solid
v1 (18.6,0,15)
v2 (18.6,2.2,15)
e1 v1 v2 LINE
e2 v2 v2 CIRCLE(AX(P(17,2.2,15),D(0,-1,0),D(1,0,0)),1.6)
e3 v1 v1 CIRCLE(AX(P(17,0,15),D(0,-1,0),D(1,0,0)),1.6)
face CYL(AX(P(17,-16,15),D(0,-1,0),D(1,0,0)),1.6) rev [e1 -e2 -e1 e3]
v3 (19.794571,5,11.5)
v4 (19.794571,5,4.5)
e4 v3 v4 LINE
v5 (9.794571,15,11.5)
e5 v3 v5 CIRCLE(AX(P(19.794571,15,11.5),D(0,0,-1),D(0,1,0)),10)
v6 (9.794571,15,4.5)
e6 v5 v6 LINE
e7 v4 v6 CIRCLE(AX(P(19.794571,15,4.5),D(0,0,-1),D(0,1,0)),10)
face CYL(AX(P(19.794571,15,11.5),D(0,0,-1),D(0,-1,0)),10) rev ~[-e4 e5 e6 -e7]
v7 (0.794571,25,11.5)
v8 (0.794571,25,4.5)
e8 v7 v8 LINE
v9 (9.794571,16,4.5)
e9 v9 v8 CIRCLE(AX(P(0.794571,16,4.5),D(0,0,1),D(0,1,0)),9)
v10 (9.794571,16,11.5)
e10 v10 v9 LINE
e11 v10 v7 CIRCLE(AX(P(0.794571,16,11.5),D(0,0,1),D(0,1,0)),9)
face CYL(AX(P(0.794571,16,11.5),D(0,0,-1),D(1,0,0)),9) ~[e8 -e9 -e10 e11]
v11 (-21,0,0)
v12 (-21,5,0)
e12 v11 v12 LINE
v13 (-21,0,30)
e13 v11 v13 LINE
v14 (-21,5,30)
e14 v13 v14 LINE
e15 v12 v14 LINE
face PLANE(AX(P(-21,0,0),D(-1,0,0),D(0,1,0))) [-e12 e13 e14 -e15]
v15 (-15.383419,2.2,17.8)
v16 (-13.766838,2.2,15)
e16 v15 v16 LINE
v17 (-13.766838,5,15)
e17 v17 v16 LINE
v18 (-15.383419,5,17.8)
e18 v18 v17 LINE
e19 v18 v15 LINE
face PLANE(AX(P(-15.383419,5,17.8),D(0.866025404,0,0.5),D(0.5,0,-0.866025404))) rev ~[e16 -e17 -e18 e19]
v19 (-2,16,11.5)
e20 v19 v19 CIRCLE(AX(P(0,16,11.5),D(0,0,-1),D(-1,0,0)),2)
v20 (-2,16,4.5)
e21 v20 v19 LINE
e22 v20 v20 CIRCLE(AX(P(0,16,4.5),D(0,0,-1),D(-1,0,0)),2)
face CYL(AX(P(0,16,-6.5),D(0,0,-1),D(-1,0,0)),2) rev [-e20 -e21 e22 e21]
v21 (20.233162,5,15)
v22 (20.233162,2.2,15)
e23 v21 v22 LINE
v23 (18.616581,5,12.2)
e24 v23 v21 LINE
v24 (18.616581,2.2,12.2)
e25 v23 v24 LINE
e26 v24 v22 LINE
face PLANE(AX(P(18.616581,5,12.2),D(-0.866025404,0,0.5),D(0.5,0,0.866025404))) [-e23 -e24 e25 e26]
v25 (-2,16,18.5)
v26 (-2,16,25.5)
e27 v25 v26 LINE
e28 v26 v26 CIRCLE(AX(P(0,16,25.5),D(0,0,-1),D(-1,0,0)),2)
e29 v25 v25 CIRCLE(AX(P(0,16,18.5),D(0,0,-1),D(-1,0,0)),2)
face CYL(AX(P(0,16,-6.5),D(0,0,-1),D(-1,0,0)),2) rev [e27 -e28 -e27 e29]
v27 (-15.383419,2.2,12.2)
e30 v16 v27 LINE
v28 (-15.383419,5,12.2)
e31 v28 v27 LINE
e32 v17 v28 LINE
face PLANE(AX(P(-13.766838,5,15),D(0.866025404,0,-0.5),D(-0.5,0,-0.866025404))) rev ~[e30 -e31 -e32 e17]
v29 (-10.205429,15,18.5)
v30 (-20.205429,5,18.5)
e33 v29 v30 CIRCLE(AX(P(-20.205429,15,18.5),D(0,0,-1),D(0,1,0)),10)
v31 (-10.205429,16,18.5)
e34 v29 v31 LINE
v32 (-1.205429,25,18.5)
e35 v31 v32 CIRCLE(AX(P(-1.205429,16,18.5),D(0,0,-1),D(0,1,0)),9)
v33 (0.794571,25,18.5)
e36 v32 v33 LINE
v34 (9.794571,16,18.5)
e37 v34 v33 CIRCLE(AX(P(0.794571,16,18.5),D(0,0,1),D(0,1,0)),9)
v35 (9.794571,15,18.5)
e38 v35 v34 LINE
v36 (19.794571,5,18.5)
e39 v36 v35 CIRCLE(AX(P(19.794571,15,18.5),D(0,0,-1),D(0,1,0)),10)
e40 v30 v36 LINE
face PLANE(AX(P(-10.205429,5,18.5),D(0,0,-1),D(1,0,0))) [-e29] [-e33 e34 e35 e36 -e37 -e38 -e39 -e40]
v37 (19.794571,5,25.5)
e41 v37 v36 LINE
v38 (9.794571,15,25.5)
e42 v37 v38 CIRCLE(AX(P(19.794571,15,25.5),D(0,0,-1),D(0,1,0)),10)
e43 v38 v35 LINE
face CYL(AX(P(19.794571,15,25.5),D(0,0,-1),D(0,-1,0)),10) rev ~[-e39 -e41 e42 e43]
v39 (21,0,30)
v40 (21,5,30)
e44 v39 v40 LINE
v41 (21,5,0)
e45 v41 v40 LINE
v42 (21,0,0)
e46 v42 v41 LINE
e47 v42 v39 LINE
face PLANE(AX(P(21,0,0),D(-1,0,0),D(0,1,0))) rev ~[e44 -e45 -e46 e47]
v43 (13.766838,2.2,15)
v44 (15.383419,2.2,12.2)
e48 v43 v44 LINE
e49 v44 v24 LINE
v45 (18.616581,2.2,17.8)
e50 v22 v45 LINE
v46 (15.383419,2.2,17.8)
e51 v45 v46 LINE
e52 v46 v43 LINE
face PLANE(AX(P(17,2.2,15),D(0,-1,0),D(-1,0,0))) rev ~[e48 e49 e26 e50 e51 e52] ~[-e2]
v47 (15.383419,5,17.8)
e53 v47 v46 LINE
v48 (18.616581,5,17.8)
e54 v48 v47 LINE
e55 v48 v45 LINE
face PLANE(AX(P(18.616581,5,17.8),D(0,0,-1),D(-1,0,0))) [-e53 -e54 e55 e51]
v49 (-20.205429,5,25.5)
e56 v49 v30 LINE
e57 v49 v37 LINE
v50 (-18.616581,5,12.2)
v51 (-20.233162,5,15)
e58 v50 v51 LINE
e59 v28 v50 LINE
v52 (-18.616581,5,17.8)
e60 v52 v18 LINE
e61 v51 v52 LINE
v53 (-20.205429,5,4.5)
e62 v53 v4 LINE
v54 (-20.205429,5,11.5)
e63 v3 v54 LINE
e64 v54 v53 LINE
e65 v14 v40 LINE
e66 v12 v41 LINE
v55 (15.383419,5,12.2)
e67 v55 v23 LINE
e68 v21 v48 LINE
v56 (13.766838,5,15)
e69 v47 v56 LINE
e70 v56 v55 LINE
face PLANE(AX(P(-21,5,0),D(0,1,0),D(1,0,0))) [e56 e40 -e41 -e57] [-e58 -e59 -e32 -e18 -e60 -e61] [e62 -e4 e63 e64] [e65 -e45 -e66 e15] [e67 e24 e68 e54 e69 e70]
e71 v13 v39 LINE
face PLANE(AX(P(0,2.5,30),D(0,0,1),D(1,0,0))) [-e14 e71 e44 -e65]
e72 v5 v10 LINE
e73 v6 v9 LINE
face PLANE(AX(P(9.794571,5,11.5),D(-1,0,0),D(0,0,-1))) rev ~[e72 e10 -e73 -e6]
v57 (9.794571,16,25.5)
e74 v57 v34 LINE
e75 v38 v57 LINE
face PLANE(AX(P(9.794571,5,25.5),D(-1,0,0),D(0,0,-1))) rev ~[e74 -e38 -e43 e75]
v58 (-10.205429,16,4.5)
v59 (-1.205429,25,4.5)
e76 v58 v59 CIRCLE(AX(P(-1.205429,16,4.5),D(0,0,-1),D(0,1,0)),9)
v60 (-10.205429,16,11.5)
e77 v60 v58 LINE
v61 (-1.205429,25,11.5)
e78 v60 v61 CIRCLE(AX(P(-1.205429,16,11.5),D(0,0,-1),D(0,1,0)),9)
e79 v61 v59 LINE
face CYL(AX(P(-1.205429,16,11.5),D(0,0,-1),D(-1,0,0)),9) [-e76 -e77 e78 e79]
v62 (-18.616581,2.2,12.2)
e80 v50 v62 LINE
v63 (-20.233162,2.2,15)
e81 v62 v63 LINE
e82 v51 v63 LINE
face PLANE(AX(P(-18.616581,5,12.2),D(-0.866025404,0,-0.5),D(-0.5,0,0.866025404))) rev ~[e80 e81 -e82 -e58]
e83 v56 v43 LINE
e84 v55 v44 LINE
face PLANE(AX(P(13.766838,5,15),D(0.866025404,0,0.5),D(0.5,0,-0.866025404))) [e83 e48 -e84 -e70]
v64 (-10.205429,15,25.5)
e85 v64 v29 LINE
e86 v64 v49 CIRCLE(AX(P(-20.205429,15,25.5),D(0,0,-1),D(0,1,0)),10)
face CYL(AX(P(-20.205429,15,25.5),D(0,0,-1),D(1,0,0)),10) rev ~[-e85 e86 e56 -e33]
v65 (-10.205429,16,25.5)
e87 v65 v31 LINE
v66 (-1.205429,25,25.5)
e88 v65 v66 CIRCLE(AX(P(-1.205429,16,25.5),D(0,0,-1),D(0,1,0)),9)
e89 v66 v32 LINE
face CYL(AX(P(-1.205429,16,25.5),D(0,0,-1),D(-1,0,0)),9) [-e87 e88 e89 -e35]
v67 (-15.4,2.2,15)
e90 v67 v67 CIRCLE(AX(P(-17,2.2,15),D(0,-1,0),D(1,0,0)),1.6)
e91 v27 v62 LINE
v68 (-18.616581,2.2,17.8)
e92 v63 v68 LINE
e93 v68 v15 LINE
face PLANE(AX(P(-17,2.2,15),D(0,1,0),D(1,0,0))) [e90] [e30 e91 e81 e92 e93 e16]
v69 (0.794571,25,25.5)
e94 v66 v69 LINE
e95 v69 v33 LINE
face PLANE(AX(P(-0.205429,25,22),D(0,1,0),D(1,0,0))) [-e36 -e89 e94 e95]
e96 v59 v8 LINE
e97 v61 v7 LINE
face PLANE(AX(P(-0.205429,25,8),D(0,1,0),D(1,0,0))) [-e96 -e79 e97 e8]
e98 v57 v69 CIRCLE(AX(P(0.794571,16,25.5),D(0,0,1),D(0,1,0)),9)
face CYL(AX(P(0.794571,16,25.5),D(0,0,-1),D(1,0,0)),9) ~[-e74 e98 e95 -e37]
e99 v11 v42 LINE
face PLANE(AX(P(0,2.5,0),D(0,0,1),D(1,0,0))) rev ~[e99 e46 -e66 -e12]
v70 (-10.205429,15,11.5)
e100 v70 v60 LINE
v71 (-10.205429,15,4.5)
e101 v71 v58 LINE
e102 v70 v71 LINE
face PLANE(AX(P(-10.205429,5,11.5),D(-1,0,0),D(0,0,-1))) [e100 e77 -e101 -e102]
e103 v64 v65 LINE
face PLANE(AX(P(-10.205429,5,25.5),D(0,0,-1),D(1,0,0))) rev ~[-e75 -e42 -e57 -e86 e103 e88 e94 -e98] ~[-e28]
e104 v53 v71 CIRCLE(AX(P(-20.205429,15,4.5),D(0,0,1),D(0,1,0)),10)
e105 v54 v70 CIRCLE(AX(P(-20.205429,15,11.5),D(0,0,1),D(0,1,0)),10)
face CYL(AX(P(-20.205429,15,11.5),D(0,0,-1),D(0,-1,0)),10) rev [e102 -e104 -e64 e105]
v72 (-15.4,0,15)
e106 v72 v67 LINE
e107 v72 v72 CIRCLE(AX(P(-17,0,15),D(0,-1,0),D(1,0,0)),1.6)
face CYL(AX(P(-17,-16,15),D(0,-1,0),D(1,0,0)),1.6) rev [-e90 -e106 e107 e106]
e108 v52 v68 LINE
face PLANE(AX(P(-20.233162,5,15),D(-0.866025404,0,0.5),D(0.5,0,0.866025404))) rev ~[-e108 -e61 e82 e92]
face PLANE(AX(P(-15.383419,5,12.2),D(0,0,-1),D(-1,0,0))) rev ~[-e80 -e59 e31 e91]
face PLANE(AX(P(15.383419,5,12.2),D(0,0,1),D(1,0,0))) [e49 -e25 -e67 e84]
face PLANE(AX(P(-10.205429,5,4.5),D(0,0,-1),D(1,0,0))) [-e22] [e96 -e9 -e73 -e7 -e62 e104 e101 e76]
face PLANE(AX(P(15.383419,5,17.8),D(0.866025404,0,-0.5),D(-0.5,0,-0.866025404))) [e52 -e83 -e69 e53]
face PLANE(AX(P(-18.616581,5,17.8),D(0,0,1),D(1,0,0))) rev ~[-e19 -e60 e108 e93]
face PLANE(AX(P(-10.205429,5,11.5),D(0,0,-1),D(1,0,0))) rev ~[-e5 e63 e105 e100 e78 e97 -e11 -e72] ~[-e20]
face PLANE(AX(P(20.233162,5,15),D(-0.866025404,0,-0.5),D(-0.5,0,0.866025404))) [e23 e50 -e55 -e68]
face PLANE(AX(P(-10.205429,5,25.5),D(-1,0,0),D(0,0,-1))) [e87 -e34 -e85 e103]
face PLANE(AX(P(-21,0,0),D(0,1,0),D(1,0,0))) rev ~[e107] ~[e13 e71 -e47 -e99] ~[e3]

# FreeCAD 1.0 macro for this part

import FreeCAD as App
import Part
import Sketcher
from FreeCAD import Vector
Q = App.Units.Quantity


def edges_at(feature, points):
    """Names of the edges that pass closest to the given points."""
    edges = feature.Shape.Edges
    near = lambda p: min(range(len(edges)), key=lambda i: edges[i].distToShape(Part.Vertex(*p))[0])
    return sorted({f"Edge{near(p) + 1}" for p in points})


def add_polygon(sketch, points):
    """Adds a closed chain of lines whose ends are joined by coincident constraints."""
    first, n = sketch.GeometryCount, len(points)
    for a, b in zip(points, points[1:] + points[:1]):
        sketch.addGeometry(Part.LineSegment(App.Vector(*a, 0), App.Vector(*b, 0)), False)
    for i in range(n):
        sketch.addConstraint(Sketcher.Constraint("Coincident", first + i, 2, first + (i + 1) % n, 1))

doc = App.newDocument("Part")
body = doc.addObject("PartDesign::Body", "Body")

# Sketch on XY plane
sketch1 = body.newObject("Sketcher::SketchObject", "Sketch")
sketch1.AttachmentSupport = (doc.getObject("XY_Plane"), [""])
sketch1.MapMode = "FlatFace"
add_polygon(sketch1, [(-21, 5), (-21, 0), (21, 0), (21, 5)])  # lines 0-3
sketch1.addConstraint([
    Sketcher.Constraint("Vertical", 0),
    Sketcher.Constraint("Horizontal", 1),
    Sketcher.Constraint("Vertical", 2),
    Sketcher.Constraint("Horizontal", 3),
    Sketcher.Constraint("Symmetric", 0, 2, 1, 2, -1, 1),
    Sketcher.Constraint("DistanceX", 1, 1, 1, 2, 42.0),
    Sketcher.Constraint("DistanceY", 0, 2, 0, 1, 5.0),
])
pad1 = body.newObject("PartDesign::Pad", "Pad")
pad1.Profile = sketch1
pad1.Length = 30

# Sketch on XZ plane
sketch2 = body.newObject("Sketcher::SketchObject", "Sketch001")
sketch2.AttachmentSupport = (doc.getObject("XZ_Plane"), [""])
sketch2.MapMode = "FlatFace"
sketch2.AttachmentOffset = App.Placement(Vector(0, 0, -5), App.Rotation())
sketch2.addGeometry([
    Part.Circle(Vector(-17, 15, 0), Vector(0, 0, 1), 1.6),
    Part.Circle(Vector(17, 15, 0), Vector(0, 0, 1), 1.6),
], False)
sketch2.addConstraint([
    Sketcher.Constraint("Equal", 0, 1),
    Sketcher.Constraint("Symmetric", 0, 3, 1, 3, -2),
    Sketcher.Constraint("Diameter", 0, 3.2),
    Sketcher.Constraint("DistanceX", 0, 3, -1, 1, 17.0),
    Sketcher.Constraint("DistanceY", -1, 1, 0, 3, 15.0),
])
pocket1 = body.newObject("PartDesign::Pocket", "Pocket")
pocket1.Profile = sketch2
pocket1.Type = "ThroughAll"
pocket1.Midplane = True

# Sketch on XZ plane
sketch3 = body.newObject("Sketcher::SketchObject", "Sketch002")
sketch3.AttachmentSupport = (doc.getObject("XZ_Plane"), [""])
sketch3.MapMode = "FlatFace"
sketch3.AttachmentOffset = App.Placement(Vector(0, 0, -5), App.Rotation())
add_polygon(sketch3, [(13.8, 15), (15.4, 17.8), (18.6, 17.8), (20.2, 15), (18.6, 12.2), (15.4, 12.2)])  # lines 0-5
add_polygon(sketch3, [(-13.8, 15), (-15.4, 12.2), (-18.6, 12.2), (-20.2, 15), (-18.6, 17.8), (-15.4, 17.8)])  # lines 6-11
sketch3.addConstraint([
    Sketcher.Constraint("Horizontal", 1),
    Sketcher.Constraint("Horizontal", 4),
    Sketcher.Constraint("Horizontal", 7),
    Sketcher.Constraint("Horizontal", 10),
    Sketcher.Constraint("Symmetric", 4, 2, 6, 2, -2),
    Sketcher.Constraint("Symmetric", 2, 2, 8, 2, -2),
    Sketcher.Constraint("Symmetric", 1, 2, 9, 2, -2),
    Sketcher.Constraint("Symmetric", 5, 2, 11, 2, -2),
    Sketcher.Constraint("Parallel", 0, 3),
    Sketcher.Constraint("Parallel", 2, 5),
    Sketcher.Constraint("Parallel", 3, 6),
    Sketcher.Constraint("Parallel", 5, 8),
    Sketcher.Constraint("Parallel", 8, 11),
    Sketcher.Constraint("Horizontal", 2, 2, 5, 2),
    Sketcher.Constraint("Vertical", 1, 2, 3, 2),
    Sketcher.Constraint("Angle", 0, Q("60 deg")),
    Sketcher.Constraint("DistanceY", -1, 1, 2, 2, 15.0),
    Sketcher.Constraint("DistanceX", 6, 2, 3, 2, 34.0),
    Sketcher.Constraint("DistanceY", -1, 1, 0, 2, 17.8),
    Sketcher.Constraint("DistanceX", 1, 1, 1, 2, 3.233162),
])
pocket2 = body.newObject("PartDesign::Pocket", "Pocket001")
pocket2.Profile = sketch3
pocket2.Length = 2.8
pocket2.Reversed = True

# Sketch on XZ plane
sketch4 = body.newObject("Sketcher::SketchObject", "Sketch003")
sketch4.AttachmentSupport = (doc.getObject("XZ_Plane"), [""])
sketch4.MapMode = "FlatFace"
sketch4.AttachmentOffset = App.Placement(Vector(0, 0, -5), App.Rotation())
add_polygon(sketch4, [(-10, 18), (-10, 26), (10, 26), (10, 18)])  # lines 0-3
add_polygon(sketch4, [(-10, 4), (-10, 12), (10, 12), (10, 4)])  # lines 4-7
sketch4.addConstraint([
    Sketcher.Constraint("Vertical", 0),
    Sketcher.Constraint("Horizontal", 1),
    Sketcher.Constraint("Vertical", 2),
    Sketcher.Constraint("Horizontal", 3),
    Sketcher.Constraint("Vertical", 4),
    Sketcher.Constraint("Horizontal", 5),
    Sketcher.Constraint("Vertical", 6),
    Sketcher.Constraint("Horizontal", 7),
    Sketcher.Constraint("Vertical", 3, 2, 4, 2),
    Sketcher.Constraint("Vertical", 2, 2, 5, 2),
    Sketcher.Constraint("Equal", 2, 4),
    Sketcher.Constraint("DistanceX", 1, 1, 1, 2, 20.0),
    Sketcher.Constraint("DistanceY", 0, 1, 0, 2, 7.0),
    Sketcher.Constraint("DistanceY", 4, 2, 3, 2, 7.0),
    Sketcher.Constraint("DistanceY", -1, 1, 0, 2, 25.5),
    Sketcher.Constraint("DistanceX", 0, 2, -1, 1, 10.205429),
])
pad2 = body.newObject("PartDesign::Pad", "Pad001")
pad2.Profile = sketch4
pad2.Length = 20
pad2.Reversed = True
doc.recompute()

fillet = body.newObject("PartDesign::Fillet", "Fillet")
fillet.Base = (pad2, edges_at(pad2, [
    (-10.205, 25, 22),
    (9.795, 25, 22),
    (-10.205, 25, 8),
    (9.795, 25, 8),
]))
fillet.Radius = 9

# Sketch on XY plane
sketch5 = body.newObject("Sketcher::SketchObject", "Sketch004")
sketch5.AttachmentSupport = (doc.getObject("XY_Plane"), [""])
sketch5.MapMode = "FlatFace"
sketch5.AttachmentOffset = App.Placement(Vector(0, 0, 25.5), App.Rotation())
sketch5.addGeometry(Part.Circle(Vector(0, 16, 0), Vector(0, 0, 1), 2), False)
sketch5.addConstraint([
    Sketcher.Constraint("PointOnObject", 0, 3, -2),
    Sketcher.Constraint("Diameter", 0, 4.0),
    Sketcher.Constraint("DistanceY", -1, 1, 0, 3, 16.0),
])
pocket3 = body.newObject("PartDesign::Pocket", "Pocket002")
pocket3.Profile = sketch5
pocket3.Type = "ThroughAll"
pocket3.Midplane = True
doc.recompute()

fillet2 = body.newObject("PartDesign::Fillet", "Fillet001")
fillet2.Base = (pocket3, edges_at(pocket3, [
    (-10.205, 5, 22),
    (9.795, 5, 22),
    (-10.205, 5, 8),
    (9.795, 5, 8),
]))
fillet2.Radius = 10

doc.recompute()
